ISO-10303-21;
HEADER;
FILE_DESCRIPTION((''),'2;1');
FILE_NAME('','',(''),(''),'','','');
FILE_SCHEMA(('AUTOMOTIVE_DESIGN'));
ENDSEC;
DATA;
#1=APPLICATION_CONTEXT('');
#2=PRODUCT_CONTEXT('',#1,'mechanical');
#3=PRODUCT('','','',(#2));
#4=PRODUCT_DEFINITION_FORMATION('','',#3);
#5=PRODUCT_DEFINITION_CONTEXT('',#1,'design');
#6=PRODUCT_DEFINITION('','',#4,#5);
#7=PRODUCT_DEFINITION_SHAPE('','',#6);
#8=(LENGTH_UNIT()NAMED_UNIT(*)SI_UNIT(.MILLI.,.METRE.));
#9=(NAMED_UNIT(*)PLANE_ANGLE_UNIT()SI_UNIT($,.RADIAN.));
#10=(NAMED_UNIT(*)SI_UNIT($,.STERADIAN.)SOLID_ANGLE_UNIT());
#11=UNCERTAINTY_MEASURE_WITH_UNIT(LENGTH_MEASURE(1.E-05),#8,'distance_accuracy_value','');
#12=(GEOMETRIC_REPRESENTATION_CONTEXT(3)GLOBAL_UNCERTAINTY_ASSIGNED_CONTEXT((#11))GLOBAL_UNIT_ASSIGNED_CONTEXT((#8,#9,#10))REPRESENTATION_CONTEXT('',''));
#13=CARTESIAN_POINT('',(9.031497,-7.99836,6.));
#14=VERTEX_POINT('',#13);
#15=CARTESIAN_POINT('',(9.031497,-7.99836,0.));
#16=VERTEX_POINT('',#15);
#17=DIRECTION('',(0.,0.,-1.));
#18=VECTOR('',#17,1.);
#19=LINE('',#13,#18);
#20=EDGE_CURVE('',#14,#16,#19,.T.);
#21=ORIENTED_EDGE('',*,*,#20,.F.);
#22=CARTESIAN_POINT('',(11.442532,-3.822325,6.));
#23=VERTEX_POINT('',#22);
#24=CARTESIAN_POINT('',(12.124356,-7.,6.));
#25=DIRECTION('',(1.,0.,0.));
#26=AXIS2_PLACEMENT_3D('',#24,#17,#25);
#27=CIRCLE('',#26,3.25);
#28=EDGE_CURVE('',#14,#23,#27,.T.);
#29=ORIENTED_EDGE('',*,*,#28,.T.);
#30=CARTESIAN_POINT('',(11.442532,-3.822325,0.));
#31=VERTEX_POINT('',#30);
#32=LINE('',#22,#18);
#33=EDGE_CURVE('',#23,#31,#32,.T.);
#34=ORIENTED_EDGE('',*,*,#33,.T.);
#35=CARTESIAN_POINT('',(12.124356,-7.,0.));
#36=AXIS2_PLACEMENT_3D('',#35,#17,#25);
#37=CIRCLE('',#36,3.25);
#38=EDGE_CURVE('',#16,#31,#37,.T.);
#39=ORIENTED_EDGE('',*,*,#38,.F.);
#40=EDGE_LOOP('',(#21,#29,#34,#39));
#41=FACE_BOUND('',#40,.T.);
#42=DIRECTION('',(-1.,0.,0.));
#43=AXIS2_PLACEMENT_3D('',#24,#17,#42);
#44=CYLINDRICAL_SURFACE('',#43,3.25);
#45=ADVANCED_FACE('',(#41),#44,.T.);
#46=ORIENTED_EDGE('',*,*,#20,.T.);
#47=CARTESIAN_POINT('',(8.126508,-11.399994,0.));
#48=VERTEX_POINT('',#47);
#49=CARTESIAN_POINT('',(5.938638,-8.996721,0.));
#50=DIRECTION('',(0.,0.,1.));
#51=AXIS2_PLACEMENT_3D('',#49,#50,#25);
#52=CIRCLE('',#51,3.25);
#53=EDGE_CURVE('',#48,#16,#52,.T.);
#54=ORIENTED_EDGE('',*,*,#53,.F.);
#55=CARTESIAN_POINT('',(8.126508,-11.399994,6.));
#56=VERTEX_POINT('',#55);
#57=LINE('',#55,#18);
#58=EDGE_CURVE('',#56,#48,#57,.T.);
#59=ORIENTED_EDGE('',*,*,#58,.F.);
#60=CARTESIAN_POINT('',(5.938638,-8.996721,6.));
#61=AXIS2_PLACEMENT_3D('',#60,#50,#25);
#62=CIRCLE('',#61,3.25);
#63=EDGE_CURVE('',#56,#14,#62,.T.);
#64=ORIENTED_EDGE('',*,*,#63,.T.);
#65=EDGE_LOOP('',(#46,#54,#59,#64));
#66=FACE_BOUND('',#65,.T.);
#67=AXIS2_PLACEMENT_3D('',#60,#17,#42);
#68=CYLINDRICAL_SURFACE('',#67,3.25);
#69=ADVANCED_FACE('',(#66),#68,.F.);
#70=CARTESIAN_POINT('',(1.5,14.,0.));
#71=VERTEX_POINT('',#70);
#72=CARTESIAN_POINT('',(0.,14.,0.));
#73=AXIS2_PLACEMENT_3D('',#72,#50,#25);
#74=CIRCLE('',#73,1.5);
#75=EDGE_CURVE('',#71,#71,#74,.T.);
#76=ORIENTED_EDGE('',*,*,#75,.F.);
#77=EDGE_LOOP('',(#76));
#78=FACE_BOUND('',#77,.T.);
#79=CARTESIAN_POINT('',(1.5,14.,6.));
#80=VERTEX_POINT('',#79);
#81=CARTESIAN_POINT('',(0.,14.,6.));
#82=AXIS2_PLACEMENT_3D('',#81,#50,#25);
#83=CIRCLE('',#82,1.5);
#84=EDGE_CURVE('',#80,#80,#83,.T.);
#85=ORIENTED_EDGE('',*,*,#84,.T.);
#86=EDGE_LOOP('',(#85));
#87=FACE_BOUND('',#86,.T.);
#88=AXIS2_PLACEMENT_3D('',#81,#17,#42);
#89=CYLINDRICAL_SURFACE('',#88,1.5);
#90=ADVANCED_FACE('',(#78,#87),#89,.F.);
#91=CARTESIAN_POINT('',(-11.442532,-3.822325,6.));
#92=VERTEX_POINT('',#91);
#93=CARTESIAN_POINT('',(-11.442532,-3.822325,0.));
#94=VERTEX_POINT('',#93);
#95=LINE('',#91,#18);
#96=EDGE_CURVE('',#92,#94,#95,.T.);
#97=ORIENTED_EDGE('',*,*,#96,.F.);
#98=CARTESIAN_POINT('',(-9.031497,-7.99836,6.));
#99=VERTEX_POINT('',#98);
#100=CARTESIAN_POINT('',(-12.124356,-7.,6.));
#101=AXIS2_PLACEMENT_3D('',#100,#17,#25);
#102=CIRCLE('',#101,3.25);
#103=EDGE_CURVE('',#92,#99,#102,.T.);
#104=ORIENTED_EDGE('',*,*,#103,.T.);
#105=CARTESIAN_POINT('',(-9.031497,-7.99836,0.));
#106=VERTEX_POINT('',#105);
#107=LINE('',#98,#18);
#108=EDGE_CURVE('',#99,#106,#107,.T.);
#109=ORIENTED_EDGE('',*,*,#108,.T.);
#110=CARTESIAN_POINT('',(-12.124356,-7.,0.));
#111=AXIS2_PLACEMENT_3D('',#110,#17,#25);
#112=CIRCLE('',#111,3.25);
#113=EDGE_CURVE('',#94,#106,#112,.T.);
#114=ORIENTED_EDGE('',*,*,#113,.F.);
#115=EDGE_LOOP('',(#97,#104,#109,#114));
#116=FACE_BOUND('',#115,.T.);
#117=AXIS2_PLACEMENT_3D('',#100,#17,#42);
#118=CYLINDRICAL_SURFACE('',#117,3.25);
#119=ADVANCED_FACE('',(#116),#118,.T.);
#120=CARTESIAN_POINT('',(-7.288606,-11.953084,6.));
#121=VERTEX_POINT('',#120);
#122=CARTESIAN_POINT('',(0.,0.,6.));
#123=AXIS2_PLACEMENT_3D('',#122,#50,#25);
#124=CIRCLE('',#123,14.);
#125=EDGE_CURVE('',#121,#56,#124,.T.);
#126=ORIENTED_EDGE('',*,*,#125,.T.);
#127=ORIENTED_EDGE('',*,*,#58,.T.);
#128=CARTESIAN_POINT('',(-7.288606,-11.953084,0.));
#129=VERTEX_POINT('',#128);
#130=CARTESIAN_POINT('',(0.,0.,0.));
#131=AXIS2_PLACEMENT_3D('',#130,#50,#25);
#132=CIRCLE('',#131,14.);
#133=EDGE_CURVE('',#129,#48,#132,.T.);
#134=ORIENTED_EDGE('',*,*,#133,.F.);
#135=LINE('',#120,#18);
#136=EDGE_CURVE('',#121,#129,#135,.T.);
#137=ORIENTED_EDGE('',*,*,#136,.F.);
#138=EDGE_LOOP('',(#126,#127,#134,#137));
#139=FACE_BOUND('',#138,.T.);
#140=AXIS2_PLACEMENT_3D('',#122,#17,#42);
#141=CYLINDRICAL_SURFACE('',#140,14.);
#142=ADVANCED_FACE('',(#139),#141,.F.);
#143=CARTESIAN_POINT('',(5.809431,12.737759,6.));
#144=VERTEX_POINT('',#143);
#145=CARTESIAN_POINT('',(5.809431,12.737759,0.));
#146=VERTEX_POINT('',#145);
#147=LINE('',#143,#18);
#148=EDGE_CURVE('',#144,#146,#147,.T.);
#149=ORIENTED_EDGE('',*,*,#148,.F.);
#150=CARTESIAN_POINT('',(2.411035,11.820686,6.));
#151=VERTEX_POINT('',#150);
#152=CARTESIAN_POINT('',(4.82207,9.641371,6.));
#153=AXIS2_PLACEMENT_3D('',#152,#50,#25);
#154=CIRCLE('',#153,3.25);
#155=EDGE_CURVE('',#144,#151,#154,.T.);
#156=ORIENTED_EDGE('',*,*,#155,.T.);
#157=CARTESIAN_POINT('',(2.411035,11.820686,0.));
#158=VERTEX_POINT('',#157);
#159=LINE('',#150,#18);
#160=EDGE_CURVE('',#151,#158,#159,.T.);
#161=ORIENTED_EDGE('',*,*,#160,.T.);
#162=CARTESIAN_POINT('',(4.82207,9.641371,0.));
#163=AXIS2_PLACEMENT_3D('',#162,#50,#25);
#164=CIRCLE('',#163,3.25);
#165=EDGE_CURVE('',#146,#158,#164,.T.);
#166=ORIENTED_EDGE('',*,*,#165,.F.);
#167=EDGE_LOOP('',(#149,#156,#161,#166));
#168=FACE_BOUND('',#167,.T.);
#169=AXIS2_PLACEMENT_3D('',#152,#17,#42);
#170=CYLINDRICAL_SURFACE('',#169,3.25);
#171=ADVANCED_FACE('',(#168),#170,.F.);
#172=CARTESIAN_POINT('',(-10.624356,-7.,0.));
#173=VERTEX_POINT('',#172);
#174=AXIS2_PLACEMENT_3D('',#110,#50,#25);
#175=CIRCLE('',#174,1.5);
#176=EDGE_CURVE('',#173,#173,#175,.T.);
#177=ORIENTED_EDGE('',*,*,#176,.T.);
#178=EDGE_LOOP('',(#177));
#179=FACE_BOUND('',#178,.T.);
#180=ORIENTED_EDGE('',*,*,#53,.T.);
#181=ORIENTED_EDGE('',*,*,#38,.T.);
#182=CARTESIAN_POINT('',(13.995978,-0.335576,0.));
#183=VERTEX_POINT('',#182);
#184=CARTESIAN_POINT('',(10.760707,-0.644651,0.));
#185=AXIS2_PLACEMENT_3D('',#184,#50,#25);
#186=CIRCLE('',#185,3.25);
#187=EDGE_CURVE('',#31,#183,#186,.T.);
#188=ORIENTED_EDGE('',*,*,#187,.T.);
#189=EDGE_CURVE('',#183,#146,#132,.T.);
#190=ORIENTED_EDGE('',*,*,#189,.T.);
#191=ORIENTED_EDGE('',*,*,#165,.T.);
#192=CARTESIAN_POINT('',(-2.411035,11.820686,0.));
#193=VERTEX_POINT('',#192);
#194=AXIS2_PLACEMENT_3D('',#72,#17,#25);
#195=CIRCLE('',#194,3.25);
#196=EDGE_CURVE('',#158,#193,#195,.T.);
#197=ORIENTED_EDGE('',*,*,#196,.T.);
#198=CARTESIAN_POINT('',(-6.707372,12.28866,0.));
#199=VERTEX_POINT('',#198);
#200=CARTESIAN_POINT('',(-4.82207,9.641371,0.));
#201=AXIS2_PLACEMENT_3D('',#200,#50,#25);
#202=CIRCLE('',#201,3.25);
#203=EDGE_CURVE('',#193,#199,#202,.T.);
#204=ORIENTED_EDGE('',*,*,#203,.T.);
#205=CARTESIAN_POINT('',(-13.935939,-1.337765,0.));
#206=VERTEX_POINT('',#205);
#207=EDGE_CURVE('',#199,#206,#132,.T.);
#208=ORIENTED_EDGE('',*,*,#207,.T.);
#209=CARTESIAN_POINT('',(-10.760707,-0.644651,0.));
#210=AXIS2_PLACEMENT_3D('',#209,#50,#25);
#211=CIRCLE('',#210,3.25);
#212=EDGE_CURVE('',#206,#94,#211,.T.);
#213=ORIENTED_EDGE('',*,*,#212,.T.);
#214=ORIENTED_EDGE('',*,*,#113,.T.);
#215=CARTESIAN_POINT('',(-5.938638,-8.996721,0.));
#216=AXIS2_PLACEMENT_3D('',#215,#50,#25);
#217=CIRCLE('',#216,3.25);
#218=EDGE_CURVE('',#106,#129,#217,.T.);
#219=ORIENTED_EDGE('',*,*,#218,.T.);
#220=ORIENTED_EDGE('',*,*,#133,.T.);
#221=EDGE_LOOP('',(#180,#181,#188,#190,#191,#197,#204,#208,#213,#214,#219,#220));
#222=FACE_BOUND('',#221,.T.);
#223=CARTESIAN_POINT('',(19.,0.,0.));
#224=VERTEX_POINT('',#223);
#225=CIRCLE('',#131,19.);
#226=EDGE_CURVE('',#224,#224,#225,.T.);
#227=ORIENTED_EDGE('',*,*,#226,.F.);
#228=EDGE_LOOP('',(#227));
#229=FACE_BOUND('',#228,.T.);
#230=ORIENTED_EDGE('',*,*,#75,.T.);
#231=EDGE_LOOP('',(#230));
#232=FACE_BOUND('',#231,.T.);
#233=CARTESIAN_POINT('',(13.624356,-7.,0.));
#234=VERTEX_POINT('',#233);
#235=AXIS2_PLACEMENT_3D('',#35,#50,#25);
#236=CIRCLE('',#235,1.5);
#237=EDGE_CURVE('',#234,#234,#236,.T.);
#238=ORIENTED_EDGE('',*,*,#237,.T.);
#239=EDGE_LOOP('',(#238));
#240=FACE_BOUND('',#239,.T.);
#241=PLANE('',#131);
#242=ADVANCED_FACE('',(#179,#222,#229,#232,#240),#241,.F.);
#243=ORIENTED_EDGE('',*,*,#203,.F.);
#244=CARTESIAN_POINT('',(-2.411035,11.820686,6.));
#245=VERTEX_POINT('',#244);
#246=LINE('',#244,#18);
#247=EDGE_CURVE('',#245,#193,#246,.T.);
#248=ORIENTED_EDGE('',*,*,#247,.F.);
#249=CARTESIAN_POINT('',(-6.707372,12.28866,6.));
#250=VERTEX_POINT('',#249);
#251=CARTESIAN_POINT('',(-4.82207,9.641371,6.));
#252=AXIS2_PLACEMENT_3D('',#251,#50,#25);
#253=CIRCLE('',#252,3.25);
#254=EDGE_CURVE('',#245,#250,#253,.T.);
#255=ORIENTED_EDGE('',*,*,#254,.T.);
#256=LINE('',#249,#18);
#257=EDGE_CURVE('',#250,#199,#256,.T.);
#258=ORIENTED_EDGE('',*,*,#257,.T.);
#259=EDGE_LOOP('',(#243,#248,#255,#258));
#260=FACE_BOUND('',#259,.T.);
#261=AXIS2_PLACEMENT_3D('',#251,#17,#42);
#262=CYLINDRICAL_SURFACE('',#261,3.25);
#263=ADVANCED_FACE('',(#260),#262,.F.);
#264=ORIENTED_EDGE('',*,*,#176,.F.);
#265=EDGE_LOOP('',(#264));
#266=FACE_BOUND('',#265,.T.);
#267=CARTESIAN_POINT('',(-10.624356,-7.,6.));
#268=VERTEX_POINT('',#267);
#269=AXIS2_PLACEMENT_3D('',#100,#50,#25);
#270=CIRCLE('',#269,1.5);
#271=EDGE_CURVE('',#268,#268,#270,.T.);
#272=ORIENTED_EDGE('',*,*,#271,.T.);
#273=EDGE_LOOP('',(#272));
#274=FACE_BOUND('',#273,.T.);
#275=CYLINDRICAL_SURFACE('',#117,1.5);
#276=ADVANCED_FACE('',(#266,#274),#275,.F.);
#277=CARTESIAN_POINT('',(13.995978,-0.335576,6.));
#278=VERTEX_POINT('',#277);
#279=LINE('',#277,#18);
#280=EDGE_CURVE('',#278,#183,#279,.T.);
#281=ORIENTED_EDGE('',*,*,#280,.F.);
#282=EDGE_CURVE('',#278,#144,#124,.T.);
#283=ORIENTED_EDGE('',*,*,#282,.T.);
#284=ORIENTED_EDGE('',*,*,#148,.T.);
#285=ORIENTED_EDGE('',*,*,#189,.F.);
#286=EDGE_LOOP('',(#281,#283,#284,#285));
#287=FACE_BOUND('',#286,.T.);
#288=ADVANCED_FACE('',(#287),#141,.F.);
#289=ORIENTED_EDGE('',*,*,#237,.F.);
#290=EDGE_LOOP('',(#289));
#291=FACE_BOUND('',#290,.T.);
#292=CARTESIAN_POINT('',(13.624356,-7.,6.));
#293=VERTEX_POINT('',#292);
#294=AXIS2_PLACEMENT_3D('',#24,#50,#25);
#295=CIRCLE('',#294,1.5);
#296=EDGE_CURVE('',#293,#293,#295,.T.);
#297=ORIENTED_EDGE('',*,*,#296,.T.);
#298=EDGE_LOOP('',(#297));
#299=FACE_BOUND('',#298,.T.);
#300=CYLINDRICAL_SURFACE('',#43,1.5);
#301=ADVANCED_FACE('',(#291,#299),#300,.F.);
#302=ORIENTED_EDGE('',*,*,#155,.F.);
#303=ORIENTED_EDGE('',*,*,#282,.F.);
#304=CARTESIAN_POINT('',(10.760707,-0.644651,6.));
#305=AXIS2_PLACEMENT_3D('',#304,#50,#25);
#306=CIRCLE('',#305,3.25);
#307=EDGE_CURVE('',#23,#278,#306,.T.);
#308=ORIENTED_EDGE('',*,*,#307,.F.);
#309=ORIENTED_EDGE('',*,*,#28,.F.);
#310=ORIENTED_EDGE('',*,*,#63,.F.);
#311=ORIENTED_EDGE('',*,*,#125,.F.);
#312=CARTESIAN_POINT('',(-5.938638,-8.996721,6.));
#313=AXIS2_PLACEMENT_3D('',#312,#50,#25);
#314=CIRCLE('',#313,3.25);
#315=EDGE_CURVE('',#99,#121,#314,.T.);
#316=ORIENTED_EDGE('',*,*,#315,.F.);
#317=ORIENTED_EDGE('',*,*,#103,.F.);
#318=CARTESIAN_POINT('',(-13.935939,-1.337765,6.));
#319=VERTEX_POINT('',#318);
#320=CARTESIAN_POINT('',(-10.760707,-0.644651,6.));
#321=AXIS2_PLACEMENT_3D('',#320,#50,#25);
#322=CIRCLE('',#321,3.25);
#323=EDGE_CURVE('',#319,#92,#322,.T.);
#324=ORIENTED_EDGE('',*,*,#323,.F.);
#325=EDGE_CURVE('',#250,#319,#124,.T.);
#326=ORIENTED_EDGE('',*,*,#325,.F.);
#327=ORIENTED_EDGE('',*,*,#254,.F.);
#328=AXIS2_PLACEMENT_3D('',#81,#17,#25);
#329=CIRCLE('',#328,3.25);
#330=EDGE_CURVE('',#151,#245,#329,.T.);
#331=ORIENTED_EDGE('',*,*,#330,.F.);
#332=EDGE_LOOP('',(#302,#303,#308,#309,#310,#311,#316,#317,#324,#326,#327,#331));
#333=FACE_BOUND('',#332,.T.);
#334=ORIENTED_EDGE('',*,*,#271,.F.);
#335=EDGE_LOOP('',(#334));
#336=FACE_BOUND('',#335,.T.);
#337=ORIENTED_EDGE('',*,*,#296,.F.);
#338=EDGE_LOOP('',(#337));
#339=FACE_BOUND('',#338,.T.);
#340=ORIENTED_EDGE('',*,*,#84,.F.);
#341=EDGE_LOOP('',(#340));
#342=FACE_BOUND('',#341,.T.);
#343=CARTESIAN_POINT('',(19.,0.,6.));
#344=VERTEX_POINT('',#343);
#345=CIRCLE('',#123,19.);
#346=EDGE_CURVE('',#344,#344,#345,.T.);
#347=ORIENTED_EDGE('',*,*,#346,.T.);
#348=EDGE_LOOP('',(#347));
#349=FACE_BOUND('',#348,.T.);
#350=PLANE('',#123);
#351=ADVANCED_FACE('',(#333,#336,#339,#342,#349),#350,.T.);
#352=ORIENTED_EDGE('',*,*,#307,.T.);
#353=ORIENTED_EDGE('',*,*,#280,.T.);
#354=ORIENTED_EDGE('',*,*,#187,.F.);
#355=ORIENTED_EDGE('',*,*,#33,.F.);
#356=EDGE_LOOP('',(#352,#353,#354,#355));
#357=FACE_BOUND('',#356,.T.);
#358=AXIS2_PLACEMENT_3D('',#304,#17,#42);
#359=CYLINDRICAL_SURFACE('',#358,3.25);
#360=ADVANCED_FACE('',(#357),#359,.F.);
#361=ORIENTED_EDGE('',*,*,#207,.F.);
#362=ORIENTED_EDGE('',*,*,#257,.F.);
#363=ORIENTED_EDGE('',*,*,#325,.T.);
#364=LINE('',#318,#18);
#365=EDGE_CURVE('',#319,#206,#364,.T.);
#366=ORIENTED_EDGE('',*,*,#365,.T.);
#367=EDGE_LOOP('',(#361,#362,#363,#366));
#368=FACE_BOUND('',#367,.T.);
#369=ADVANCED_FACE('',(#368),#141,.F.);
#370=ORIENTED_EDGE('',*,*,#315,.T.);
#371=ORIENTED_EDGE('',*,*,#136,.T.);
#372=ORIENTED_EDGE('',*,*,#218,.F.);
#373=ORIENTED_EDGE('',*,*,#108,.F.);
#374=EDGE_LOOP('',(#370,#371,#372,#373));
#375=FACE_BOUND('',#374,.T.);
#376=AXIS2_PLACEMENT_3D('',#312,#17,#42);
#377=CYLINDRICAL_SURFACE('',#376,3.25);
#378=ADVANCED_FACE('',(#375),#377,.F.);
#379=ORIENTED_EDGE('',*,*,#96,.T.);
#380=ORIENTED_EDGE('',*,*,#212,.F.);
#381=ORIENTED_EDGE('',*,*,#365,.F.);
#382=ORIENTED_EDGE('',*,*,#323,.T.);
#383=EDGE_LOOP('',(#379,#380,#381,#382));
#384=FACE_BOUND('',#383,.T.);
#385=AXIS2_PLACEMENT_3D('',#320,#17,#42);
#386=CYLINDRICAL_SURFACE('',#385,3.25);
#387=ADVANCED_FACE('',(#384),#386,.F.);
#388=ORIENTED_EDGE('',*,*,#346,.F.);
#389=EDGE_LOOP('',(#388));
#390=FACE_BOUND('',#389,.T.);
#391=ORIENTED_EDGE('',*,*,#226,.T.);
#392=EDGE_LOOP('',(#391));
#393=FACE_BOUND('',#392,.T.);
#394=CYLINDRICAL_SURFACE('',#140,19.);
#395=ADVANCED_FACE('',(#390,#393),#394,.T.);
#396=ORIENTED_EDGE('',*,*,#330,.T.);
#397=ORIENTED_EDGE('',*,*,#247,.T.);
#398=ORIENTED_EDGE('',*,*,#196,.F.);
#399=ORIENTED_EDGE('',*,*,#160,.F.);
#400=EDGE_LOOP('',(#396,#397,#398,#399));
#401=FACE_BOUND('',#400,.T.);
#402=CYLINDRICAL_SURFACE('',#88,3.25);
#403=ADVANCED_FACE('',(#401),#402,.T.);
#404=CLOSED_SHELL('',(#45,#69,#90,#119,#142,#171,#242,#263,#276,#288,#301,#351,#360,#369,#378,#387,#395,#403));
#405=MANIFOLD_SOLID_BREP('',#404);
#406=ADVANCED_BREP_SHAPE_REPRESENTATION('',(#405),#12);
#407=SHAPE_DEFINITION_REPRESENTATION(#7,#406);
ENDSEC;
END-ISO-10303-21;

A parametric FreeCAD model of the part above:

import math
import FreeCAD as App
import Part
import Sketcher

doc = App.newDocument("Part")
body = doc.addObject("PartDesign::Body", "Body")

sketch1 = body.newObject("Sketcher::SketchObject", "Sketch")
sketch1.AttachmentSupport = (doc.getObject("XY_Plane"), [""])
sketch1.MapMode = "FlatFace"
sketch1.addGeometry([
    Part.Circle(App.Vector(0, 0, 0), App.Vector(0, 0, 1), 19),
    Part.Circle(App.Vector(-12.1, -7, 0), App.Vector(0, 0, 1), 1.5),
    Part.Circle(App.Vector(12.1, -7, 0), App.Vector(0, 0, 1), 1.5),
    Part.ArcOfCircle(Part.Circle(App.Vector(-4.8, 9.6, 0), App.Vector(0, 0, 1), 3.2), math.radians(42), math.radians(125)),
    Part.ArcOfCircle(Part.Circle(App.Vector(0, 14, 0), App.Vector(0, 0, 1), 3.3), math.radians(-138), math.radians(-42)),
    Part.ArcOfCircle(Part.Circle(App.Vector(4.8, 9.6, 0), App.Vector(0, 0, 1), 3.2), math.radians(72), math.radians(138)),
    Part.ArcOfCircle(Part.Circle(App.Vector(0, 0, 0), App.Vector(0, 0, 1), 14), math.radians(-1), math.radians(65)),
    Part.ArcOfCircle(Part.Circle(App.Vector(10.8, -0.6, 0), App.Vector(0, 0, 1), 3.2), math.radians(-78), math.radians(5)),
    Part.ArcOfCircle(Part.Circle(App.Vector(12.1, -7, 0), App.Vector(0, 0, 1), 3.3), math.radians(102), math.radians(198)),
    Part.ArcOfCircle(Part.Circle(App.Vector(5.9, -9, 0), App.Vector(0, 0, 1), 3.2), math.radians(-48), math.radians(18)),
    Part.ArcOfCircle(Part.Circle(App.Vector(0, 0, 0), App.Vector(0, 0, 1), 14), math.radians(-121), math.radians(-55)),
    Part.ArcOfCircle(Part.Circle(App.Vector(-5.9, -9, 0), App.Vector(0, 0, 1), 3.2), math.radians(162), math.radians(245)),
    Part.ArcOfCircle(Part.Circle(App.Vector(-12.1, -7, 0), App.Vector(0, 0, 1), 3.3), math.radians(-18), math.radians(78)),
    Part.ArcOfCircle(Part.Circle(App.Vector(-10.8, -0.6, 0), App.Vector(0, 0, 1), 3.2), math.radians(-168), math.radians(-102)),
    Part.ArcOfCircle(Part.Circle(App.Vector(0, 0, 0), App.Vector(0, 0, 1), 14), math.radians(119), math.radians(185)),
    Part.Circle(App.Vector(0, 14, 0), App.Vector(0, 0, 1), 1.5),
], False)
sketch1.addConstraint([
    Sketcher.Constraint("Tangent", 3, 1, 4, 1),
    Sketcher.Constraint("Tangent", 4, 2, 5, 2),
    Sketcher.Constraint("Coincident", 5, 1, 6, 2),
    Sketcher.Constraint("Coincident", 6, 1, 7, 2),
    Sketcher.Constraint("Tangent", 7, 1, 8, 1),
    Sketcher.Constraint("Tangent", 8, 2, 9, 2),
    Sketcher.Constraint("Coincident", 9, 1, 10, 2),
    Sketcher.Constraint("Coincident", 10, 1, 11, 2),
    Sketcher.Constraint("Tangent", 11, 1, 12, 1),
    Sketcher.Constraint("Tangent", 12, 2, 13, 2),
    Sketcher.Constraint("Coincident", 13, 1, 14, 2),
    Sketcher.Constraint("Coincident", 14, 1, 3, 2),
    Sketcher.Constraint("Coincident", 0, 3, -1, 1),
    Sketcher.Constraint("Coincident", 6, 3, -1, 1),
    Sketcher.Constraint("Coincident", 10, 3, -1, 1),
    Sketcher.Constraint("Coincident", 14, 3, -1, 1),
    Sketcher.Constraint("Coincident", 8, 3, 2, 3),
    Sketcher.Constraint("Coincident", 12, 3, 1, 3),
    Sketcher.Constraint("Coincident", 15, 3, 4, 3),
    Sketcher.Constraint("Equal", 1, 2),
    Sketcher.Constraint("Equal", 3, 4),
    Sketcher.Constraint("Equal", 4, 5),
    Sketcher.Constraint("Equal", 5, 7),
    Sketcher.Constraint("Equal", 7, 8),
    Sketcher.Constraint("Equal", 8, 9),
    Sketcher.Constraint("Equal", 6, 10),
    Sketcher.Constraint("Equal", 9, 11),
    Sketcher.Constraint("Equal", 11, 12),
    Sketcher.Constraint("Equal", 12, 13),
    Sketcher.Constraint("Equal", 10, 14),
    Sketcher.Constraint("Equal", 2, 15),
    Sketcher.Constraint("Symmetric", 1, 3, 2, 3, -2),
    Sketcher.Constraint("Symmetric", 3, 3, 5, 3, -2),
    Sketcher.Constraint("Horizontal", 9, 3, 11, 3),
    Sketcher.Constraint("Horizontal", 7, 3, 13, 3),
    Sketcher.Constraint("Diameter", 0, 38.0),
    Sketcher.Constraint("Diameter", 1, 3.0),
    Sketcher.Constraint("Radius", 6, 14.0),
    Sketcher.Constraint("Radius", 3, 3.25),
    Sketcher.Constraint("DistanceY", 1, 3, -1, 1, 7.0),
    Sketcher.Constraint("DistanceY", -1, 1, 4, 3, 14.0),
    Sketcher.Constraint("DistanceX", 13, 3, 10, 1, 3.472101),
    Sketcher.Constraint("DistanceX", 14, 1, 3, 3, 1.885302),
    Sketcher.Constraint("DistanceY", 7, 3, -1, 1, 0.644651),
    Sketcher.Constraint("DistanceY", 9, 3, -1, 1, 8.996721),
])
pad1 = body.newObject("PartDesign::Pad", "Pad")
pad1.Profile = sketch1
pad1.Length = 6

doc.recompute()
